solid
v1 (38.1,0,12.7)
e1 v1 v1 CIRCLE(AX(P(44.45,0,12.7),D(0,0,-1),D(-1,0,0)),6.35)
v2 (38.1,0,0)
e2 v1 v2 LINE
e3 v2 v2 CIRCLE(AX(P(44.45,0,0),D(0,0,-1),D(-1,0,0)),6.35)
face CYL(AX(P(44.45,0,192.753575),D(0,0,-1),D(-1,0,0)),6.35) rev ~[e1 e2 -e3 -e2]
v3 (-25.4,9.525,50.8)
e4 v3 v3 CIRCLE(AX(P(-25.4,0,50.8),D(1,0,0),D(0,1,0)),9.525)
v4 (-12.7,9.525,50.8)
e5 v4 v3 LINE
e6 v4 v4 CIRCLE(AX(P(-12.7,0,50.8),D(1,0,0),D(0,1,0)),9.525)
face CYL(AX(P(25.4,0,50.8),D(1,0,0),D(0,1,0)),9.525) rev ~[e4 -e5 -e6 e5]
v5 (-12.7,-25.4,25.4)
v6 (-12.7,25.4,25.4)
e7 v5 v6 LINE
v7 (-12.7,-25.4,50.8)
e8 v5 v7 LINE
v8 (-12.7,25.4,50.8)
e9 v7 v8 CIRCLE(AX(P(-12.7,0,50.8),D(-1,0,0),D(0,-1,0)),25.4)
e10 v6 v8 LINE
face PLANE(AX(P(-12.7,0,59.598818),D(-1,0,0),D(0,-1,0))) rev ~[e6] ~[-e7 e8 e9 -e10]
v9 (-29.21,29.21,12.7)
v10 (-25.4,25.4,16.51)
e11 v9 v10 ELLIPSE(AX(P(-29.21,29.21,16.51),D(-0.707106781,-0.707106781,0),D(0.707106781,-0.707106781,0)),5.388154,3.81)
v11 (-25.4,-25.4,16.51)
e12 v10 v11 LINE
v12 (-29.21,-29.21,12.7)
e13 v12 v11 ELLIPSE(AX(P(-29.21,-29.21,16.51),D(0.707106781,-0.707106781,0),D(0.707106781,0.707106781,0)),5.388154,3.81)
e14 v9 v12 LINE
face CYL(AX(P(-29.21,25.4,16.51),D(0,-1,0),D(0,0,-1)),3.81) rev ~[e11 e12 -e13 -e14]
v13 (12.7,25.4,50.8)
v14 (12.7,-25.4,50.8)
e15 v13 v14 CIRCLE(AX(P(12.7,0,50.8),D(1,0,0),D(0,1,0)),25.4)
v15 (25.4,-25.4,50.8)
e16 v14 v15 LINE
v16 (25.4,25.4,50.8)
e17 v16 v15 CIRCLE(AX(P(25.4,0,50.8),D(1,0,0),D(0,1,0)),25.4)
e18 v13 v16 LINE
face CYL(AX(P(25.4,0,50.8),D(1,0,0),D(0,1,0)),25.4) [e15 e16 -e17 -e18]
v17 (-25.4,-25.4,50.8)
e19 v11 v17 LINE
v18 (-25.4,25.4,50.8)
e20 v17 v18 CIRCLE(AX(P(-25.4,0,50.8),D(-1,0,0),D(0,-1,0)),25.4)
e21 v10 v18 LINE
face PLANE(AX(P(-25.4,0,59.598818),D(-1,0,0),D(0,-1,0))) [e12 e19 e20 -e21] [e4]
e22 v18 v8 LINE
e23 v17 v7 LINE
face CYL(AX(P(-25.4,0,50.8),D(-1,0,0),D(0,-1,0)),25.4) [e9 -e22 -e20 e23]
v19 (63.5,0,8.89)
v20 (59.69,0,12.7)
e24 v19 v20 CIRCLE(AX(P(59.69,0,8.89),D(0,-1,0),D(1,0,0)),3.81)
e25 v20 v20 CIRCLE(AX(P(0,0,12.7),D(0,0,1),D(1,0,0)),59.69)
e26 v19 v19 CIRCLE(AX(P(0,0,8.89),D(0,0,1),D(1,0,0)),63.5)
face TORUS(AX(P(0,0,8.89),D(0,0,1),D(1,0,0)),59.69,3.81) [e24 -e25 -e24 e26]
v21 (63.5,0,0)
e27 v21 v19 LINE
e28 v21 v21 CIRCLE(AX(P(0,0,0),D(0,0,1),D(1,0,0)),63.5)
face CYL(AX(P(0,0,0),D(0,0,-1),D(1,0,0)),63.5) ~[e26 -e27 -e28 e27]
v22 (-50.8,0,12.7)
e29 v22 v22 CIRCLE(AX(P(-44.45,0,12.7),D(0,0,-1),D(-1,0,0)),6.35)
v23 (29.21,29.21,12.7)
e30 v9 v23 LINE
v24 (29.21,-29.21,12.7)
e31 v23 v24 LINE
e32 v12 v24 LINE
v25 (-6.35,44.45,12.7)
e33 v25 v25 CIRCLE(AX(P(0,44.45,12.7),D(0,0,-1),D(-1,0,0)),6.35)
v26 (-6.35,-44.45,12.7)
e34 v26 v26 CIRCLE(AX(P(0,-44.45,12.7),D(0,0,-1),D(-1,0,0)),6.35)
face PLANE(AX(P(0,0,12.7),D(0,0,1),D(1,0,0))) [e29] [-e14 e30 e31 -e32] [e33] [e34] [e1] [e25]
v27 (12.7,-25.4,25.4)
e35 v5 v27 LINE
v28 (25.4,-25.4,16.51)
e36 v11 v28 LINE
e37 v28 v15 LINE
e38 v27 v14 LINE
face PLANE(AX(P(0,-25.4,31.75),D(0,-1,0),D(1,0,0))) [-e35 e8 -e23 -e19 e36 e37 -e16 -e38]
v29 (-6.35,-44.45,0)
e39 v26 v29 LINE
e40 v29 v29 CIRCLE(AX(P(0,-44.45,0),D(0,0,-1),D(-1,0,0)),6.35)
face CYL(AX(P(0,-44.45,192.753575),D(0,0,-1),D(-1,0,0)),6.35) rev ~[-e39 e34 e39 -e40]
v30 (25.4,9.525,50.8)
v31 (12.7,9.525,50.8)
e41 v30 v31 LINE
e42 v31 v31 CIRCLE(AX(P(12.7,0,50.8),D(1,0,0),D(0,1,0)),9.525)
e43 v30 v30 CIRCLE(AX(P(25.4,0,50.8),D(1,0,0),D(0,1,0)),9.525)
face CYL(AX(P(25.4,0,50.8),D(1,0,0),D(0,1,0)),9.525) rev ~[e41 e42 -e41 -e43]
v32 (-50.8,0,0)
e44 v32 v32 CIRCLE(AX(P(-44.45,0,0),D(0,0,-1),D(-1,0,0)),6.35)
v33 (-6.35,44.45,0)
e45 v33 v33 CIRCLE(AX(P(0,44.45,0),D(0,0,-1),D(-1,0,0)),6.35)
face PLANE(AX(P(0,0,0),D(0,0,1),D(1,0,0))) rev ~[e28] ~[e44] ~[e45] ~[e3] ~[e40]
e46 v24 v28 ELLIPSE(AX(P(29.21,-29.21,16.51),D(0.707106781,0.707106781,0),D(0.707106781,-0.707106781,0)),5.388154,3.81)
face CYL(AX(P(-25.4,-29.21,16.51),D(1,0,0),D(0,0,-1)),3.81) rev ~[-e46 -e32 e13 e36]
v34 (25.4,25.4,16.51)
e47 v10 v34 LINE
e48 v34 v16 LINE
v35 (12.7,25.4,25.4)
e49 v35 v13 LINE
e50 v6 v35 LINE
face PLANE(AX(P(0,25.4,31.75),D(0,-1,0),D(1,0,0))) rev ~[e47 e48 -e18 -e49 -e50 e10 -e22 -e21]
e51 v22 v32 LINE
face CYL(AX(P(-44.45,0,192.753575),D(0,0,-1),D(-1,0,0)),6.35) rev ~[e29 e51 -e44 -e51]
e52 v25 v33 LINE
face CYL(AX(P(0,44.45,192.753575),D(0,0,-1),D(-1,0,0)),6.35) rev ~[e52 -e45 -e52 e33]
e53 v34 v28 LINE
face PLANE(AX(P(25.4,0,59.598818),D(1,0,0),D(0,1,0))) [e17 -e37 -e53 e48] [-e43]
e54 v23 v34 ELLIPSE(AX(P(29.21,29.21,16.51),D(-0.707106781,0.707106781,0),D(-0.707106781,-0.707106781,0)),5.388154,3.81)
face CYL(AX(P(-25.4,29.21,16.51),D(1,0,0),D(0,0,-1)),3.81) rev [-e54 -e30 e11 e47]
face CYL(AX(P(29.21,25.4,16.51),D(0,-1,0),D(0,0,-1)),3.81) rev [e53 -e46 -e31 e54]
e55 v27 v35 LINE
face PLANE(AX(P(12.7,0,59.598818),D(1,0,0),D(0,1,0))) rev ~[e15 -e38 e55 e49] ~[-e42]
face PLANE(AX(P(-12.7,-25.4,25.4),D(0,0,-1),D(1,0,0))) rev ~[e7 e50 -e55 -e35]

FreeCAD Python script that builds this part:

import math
import FreeCAD as App
import Part
import Sketcher
Q = App.Units.Quantity


def edges_at(feature, points):
    """Names of the edges that pass closest to the given points."""
    edges = feature.Shape.Edges
    near = lambda p: min(range(len(edges)), key=lambda i: edges[i].distToShape(Part.Vertex(*p))[0])
    return sorted({f"Edge{near(p) + 1}" for p in points})

doc = App.newDocument("Part")
body = doc.addObject("PartDesign::Body", "Body")

# Sketch on XY plane
sketch1 = body.newObject("Sketcher::SketchObject", "Sketch")
sketch1.AttachmentSupport = (doc.getObject("XY_Plane"), [""])
sketch1.MapMode = "FlatFace"
sketch1.addGeometry(Part.Circle(App.Vector(0, 0, 0), App.Vector(0, 0, 1), 63.5), False)
sketch1.addConstraint(Sketcher.Constraint("Coincident", 0, 3, -1, 1))
sketch1.addConstraint(Sketcher.Constraint("Diameter", 0, Q("5 in")))
pad1 = body.newObject("PartDesign::Pad", "Pad")
pad1.Profile = sketch1
pad1.Length = Q("0.5 in")

# Sketch on XY plane
sketch2 = body.newObject("Sketcher::SketchObject", "Sketch001")
sketch2.AttachmentSupport = (doc.getObject("XY_Plane"), [""])
sketch2.MapMode = "FlatFace"
sketch2.AttachmentOffset = App.Placement(App.Vector(0, 0, 0.5 * 25.4), App.Rotation())
sketch2.addGeometry(Part.Circle(App.Vector(0, 44.45, 0), App.Vector(0, 0, 1), 6.35), False)
sketch2.addGeometry(Part.Circle(App.Vector(-44.45, 0, 0), App.Vector(0, 0, 1), 6.35), False)
sketch2.addGeometry(Part.Circle(App.Vector(0, -44.45, 0), App.Vector(0, 0, 1), 6.35), False)
sketch2.addGeometry(Part.Circle(App.Vector(44.45, 0, 0), App.Vector(0, 0, 1), 6.35), False)
sketch2.addConstraint(Sketcher.Constraint("Equal", 0, 1))
sketch2.addConstraint(Sketcher.Constraint("Equal", 1, 2))
sketch2.addConstraint(Sketcher.Constraint("Equal", 2, 3))
sketch2.addConstraint(Sketcher.Constraint("Symmetric", 0, 3, 2, 3, -1, 1))
sketch2.addConstraint(Sketcher.Constraint("Symmetric", 1, 3, 3, 3, -1, 1))
sketch2.addConstraint(Sketcher.Constraint("PointOnObject", 0, 3, -2))
sketch2.addConstraint(Sketcher.Constraint("PointOnObject", 1, 3, -1))
sketch2.addConstraint(Sketcher.Constraint("Diameter", 0, Q("0.5 in")))
sketch2.addConstraint(Sketcher.Constraint("DistanceY", 2, 3, 0, 3, Q("3.5 in")))
sketch2.addConstraint(Sketcher.Constraint("DistanceX", 1, 3, 3, 3, Q("3.5 in")))
doc.recompute()
hole = body.newObject("PartDesign::Hole", "Hole")
hole.Profile = sketch2
hole.ThreadType = "None"
hole.Diameter = Q("0.5 in")
hole.DepthType = "ThroughAll"

# Sketch on XZ plane
sketch3 = body.newObject("Sketcher::SketchObject", "Sketch002")
sketch3.AttachmentSupport = (doc.getObject("XZ_Plane"), [""])
sketch3.MapMode = "FlatFace"
sketch3.addGeometry(Part.LineSegment(App.Vector(-25.4, 50.8, 0), App.Vector(-25.4, 12.7, 0)), False)
sketch3.addGeometry(Part.LineSegment(App.Vector(-25.4, 12.7, 0), App.Vector(25.4, 12.7, 0)), False)
sketch3.addGeometry(Part.LineSegment(App.Vector(25.4, 12.7, 0), App.Vector(25.4, 50.8, 0)), False)
sketch3.addGeometry(Part.LineSegment(App.Vector(25.4, 50.8, 0), App.Vector(-25.4, 50.8, 0)), False)
sketch3.addConstraint(Sketcher.Constraint("Coincident", 0, 2, 1, 1))
sketch3.addConstraint(Sketcher.Constraint("Coincident", 1, 2, 2, 1))
sketch3.addConstraint(Sketcher.Constraint("Coincident", 2, 2, 3, 1))
sketch3.addConstraint(Sketcher.Constraint("Coincident", 3, 2, 0, 1))
sketch3.addConstraint(Sketcher.Constraint("Vertical", 0))
sketch3.addConstraint(Sketcher.Constraint("Horizontal", 1))
sketch3.addConstraint(Sketcher.Constraint("Vertical", 2))
sketch3.addConstraint(Sketcher.Constraint("Horizontal", 3))
sketch3.addConstraint(Sketcher.Constraint("DistanceX", 1, 1, 1, 2, Q("2 in")))
sketch3.addConstraint(Sketcher.Constraint("DistanceY", 0, 2, 0, 1, Q("1.5 in")))
sketch3.addConstraint(Sketcher.Constraint("DistanceX", 0, 2, -1, 1, Q("1 in")))
sketch3.addConstraint(Sketcher.Constraint("DistanceY", -1, 1, 2, 2, Q("2 in")))
pad2 = body.newObject("PartDesign::Pad", "Pad001")
pad2.Profile = sketch3
pad2.Length = Q("2 in")
pad2.Midplane = True

# Sketch on XZ plane
sketch4 = body.newObject("Sketcher::SketchObject", "Sketch003")
sketch4.AttachmentSupport = (doc.getObject("XZ_Plane"), [""])
sketch4.MapMode = "FlatFace"
sketch4.AttachmentOffset = App.Placement(App.Vector(0, 0, 1 * 25.4), App.Rotation())
sketch4.addGeometry(Part.LineSegment(App.Vector(-12.7, 50.8, 0), App.Vector(-12.7, 25.4, 0)), False)
sketch4.addGeometry(Part.LineSegment(App.Vector(-12.7, 25.4, 0), App.Vector(12.7, 25.4, 0)), False)
sketch4.addGeometry(Part.LineSegment(App.Vector(12.7, 25.4, 0), App.Vector(12.7, 50.8, 0)), False)
sketch4.addGeometry(Part.LineSegment(App.Vector(12.7, 50.8, 0), App.Vector(-12.7, 50.8, 0)), False)
sketch4.addConstraint(Sketcher.Constraint("Coincident", 0, 2, 1, 1))
sketch4.addConstraint(Sketcher.Constraint("Coincident", 1, 2, 2, 1))
sketch4.addConstraint(Sketcher.Constraint("Coincident", 2, 2, 3, 1))
sketch4.addConstraint(Sketcher.Constraint("Coincident", 3, 2, 0, 1))
sketch4.addConstraint(Sketcher.Constraint("Vertical", 0))
sketch4.addConstraint(Sketcher.Constraint("Horizontal", 1))
sketch4.addConstraint(Sketcher.Constraint("Vertical", 2))
sketch4.addConstraint(Sketcher.Constraint("Horizontal", 3))
sketch4.addConstraint(Sketcher.Constraint("Equal", 3, 0))
sketch4.addConstraint(Sketcher.Constraint("DistanceX", 1, 1, 1, 2, Q("1 in")))
sketch4.addConstraint(Sketcher.Constraint("DistanceY", -1, 1, 0, 2, Q("1 in")))
sketch4.addConstraint(Sketcher.Constraint("DistanceX", 0, 2, -1, 1, Q("0.5 in")))
pocket1 = body.newObject("PartDesign::Pocket", "Pocket")
pocket1.Profile = sketch4
pocket1.Type = "ThroughAll"
doc.recompute()

fillet = body.newObject("PartDesign::Fillet", "Fillet")
fillet.Base = (pocket1, edges_at(pocket1, [
    (-63.5, 0, 12.7),
    (0, -25.4, 12.7),
    (25.4, 0, 12.7),
    (-25.4, 0, 12.7),
    (0, 25.4, 12.7),
]))
fillet.Radius = Q("0.15 in")

# Sketch on YZ plane
sketch5 = body.newObject("Sketcher::SketchObject", "Sketch004")
sketch5.AttachmentSupport = (doc.getObject("YZ_Plane"), [""])
sketch5.MapMode = "FlatFace"
sketch5.AttachmentOffset = App.Placement(App.Vector(0, 0, 1 * 25.4), App.Rotation())
sketch5.addGeometry(Part.LineSegment(App.Vector(-25.4, 50.8, 0), App.Vector(25.4, 50.8, 0)), False)
sketch5.addGeometry(Part.ArcOfCircle(Part.Circle(App.Vector(0, 50.8, 0), App.Vector(0, 0, 1), 25.4), math.radians(0), math.radians(180)), False)
sketch5.addConstraint(Sketcher.Constraint("Coincident", 0, 1, 1, 2))
sketch5.addConstraint(Sketcher.Constraint("Coincident", 1, 1, 0, 2))
sketch5.addConstraint(Sketcher.Constraint("Horizontal", 0))
sketch5.addConstraint(Sketcher.Constraint("PointOnObject", 1, 3, -2))
sketch5.addConstraint(Sketcher.Constraint("Horizontal", 1, 3, 0, 1))
sketch5.addConstraint(Sketcher.Constraint("Radius", 1, Q("1 in")))
sketch5.addConstraint(Sketcher.Constraint("DistanceY", -1, 1, 1, 3, Q("2 in")))
pad3 = body.newObject("PartDesign::Pad", "Pad002")
pad3.Profile = sketch5
pad3.Length = Q("0.5 in")
pad3.Reversed = True

# Sketch on YZ plane
sketch6 = body.newObject("Sketcher::SketchObject", "Sketch005")
sketch6.AttachmentSupport = (doc.getObject("YZ_Plane"), [""])
sketch6.MapMode = "FlatFace"
sketch6.AttachmentOffset = App.Placement(App.Vector(0, 0, -1 * 25.4), App.Rotation())
sketch6.addGeometry(Part.LineSegment(App.Vector(25.4, 50.8, 0), App.Vector(-25.4, 50.8, 0)), False)
sketch6.addGeometry(Part.ArcOfCircle(Part.Circle(App.Vector(0, 50.8, 0), App.Vector(0, 0, 1), 25.4), math.radians(0), math.radians(180)), False)
sketch6.addConstraint(Sketcher.Constraint("Coincident", 0, 1, 1, 1))
sketch6.addConstraint(Sketcher.Constraint("Coincident", 1, 2, 0, 2))
sketch6.addConstraint(Sketcher.Constraint("Horizontal", 0))
sketch6.addConstraint(Sketcher.Constraint("PointOnObject", 1, 3, -2))
sketch6.addConstraint(Sketcher.Constraint("Horizontal", 1, 3, 0, 1))
sketch6.addConstraint(Sketcher.Constraint("Radius", 1, Q("1 in")))
sketch6.addConstraint(Sketcher.Constraint("DistanceY", -1, 1, 1, 3, Q("2 in")))
pad4 = body.newObject("PartDesign::Pad", "Pad003")
pad4.Profile = sketch6
pad4.Length = Q("0.5 in")

# Sketch on YZ plane
sketch7 = body.newObject("Sketcher::SketchObject", "Sketch006")
sketch7.AttachmentSupport = (doc.getObject("YZ_Plane"), [""])
sketch7.MapMode = "FlatFace"
sketch7.AttachmentOffset = App.Placement(App.Vector(0, 0, 1 * 25.4), App.Rotation())
sketch7.addGeometry(Part.Circle(App.Vector(0, 50.8, 0), App.Vector(0, 0, 1), 9.525), False)
sketch7.addConstraint(Sketcher.Constraint("PointOnObject", 0, 3, -2))
sketch7.addConstraint(Sketcher.Constraint("Diameter", 0, Q("0.75 in")))
sketch7.addConstraint(Sketcher.Constraint("DistanceY", -1, 1, 0, 3, Q("2 in")))
pocket2 = body.newObject("PartDesign::Pocket", "Pocket001")
pocket2.Profile = sketch7
pocket2.Type = "ThroughAll"

doc.recompute()
